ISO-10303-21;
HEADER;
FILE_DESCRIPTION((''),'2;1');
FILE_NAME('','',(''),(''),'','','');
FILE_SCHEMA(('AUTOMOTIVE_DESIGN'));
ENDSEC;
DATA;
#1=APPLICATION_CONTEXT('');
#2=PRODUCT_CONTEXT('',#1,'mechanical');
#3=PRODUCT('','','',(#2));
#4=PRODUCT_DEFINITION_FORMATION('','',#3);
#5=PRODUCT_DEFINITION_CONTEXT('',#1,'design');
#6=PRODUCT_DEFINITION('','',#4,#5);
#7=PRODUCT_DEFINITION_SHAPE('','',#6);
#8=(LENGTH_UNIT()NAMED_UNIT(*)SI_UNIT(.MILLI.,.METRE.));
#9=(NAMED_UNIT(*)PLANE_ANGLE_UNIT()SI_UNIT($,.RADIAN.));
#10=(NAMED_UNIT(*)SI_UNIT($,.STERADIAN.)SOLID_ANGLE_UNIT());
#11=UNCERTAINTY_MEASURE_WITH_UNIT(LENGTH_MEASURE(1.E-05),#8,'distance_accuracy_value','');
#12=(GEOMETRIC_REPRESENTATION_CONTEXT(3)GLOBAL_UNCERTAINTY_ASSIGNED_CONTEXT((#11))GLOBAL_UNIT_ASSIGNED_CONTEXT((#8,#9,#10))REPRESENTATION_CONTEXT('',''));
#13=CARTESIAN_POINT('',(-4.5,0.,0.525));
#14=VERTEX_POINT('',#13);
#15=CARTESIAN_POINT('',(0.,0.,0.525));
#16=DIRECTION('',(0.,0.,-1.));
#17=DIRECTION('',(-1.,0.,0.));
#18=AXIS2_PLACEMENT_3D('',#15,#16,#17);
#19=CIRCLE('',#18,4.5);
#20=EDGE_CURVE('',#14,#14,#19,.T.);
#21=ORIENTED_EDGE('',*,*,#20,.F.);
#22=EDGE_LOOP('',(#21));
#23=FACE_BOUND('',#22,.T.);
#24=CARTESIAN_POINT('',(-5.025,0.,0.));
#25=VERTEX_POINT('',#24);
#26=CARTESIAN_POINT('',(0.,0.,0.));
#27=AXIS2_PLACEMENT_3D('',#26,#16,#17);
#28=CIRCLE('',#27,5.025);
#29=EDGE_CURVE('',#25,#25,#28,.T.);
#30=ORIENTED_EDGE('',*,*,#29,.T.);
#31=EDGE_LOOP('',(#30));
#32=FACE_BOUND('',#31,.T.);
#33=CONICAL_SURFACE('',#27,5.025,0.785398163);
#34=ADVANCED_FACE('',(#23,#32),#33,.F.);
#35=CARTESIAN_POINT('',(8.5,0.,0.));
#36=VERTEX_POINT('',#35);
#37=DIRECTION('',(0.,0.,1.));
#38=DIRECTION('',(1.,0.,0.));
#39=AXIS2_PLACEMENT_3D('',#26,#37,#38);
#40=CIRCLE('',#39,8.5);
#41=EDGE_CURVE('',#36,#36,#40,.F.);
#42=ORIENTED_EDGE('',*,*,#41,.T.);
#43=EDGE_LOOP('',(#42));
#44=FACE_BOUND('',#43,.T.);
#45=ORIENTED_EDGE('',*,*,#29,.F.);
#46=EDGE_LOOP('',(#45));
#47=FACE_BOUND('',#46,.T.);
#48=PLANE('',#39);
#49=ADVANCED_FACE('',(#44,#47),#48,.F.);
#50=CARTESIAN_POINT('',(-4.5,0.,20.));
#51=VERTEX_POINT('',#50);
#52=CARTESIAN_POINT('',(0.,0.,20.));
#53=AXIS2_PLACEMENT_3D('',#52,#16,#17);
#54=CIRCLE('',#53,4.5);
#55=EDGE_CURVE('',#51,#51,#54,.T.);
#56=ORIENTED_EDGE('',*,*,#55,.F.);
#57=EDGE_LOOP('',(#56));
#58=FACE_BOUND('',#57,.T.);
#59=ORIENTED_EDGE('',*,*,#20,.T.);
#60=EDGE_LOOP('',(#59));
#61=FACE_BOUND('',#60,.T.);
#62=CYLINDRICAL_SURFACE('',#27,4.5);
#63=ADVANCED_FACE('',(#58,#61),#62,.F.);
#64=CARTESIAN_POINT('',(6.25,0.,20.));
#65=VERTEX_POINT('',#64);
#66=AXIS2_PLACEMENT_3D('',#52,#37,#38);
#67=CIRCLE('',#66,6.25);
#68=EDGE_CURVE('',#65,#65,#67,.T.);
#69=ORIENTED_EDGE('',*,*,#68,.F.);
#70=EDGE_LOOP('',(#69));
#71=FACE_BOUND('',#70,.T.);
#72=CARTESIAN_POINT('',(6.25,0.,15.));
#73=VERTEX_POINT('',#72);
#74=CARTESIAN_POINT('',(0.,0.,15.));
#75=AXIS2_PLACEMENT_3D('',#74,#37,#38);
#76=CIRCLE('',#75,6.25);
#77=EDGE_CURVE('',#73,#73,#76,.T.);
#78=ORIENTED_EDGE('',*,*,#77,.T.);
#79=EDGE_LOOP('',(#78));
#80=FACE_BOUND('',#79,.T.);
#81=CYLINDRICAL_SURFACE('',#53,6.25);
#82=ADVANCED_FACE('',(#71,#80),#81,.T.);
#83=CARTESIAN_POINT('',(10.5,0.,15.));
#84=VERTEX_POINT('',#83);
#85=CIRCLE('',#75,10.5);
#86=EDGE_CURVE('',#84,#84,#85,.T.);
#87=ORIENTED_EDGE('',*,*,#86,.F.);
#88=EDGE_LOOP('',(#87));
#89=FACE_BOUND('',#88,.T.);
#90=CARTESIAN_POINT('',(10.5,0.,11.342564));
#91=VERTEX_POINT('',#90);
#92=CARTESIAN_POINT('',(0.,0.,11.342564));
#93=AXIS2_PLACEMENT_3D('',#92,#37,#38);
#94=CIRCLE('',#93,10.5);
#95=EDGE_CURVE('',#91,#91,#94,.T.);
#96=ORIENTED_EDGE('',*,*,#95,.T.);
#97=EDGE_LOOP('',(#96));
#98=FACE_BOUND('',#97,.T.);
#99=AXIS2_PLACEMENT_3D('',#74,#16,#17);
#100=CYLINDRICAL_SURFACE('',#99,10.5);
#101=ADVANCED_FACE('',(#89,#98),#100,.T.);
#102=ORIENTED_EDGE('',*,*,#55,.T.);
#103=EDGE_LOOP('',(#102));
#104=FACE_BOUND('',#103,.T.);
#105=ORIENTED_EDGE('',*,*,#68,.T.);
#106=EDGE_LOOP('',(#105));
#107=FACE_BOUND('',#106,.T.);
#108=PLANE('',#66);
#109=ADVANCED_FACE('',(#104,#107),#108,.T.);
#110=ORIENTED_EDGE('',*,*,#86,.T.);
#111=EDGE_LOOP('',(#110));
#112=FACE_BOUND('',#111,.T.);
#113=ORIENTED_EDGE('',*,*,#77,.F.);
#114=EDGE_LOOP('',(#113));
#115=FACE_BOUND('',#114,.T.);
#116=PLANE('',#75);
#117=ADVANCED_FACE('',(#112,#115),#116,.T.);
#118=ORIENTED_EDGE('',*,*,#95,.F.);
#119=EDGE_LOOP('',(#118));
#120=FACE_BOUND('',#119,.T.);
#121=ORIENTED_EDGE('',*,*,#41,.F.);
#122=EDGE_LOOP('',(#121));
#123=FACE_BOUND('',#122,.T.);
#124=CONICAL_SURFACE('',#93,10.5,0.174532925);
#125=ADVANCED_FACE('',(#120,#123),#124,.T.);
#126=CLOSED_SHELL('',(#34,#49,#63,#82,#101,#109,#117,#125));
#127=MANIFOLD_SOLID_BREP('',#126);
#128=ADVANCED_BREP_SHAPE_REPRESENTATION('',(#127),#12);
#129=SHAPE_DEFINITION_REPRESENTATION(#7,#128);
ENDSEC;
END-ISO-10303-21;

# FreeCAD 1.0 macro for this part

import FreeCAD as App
import Part
import Sketcher
Q = App.Units.Quantity


def edges_at(feature, points):
    """Names of the edges that pass closest to the given points."""
    edges = feature.Shape.Edges
    near = lambda p: min(range(len(edges)), key=lambda i: edges[i].distToShape(Part.Vertex(*p))[0])
    return sorted({f"Edge{near(p) + 1}" for p in points})

doc = App.newDocument("Part")
body = doc.addObject("PartDesign::Body", "Body")

sketch1 = doc.addObject("Sketcher::SketchObject", "Sketch")
body.addObject(sketch1)
sketch1.AttachmentSupport = (doc.XY_Plane, [""])
sketch1.MapMode = "FlatFace"
sketch1.addGeometry(Part.Circle(App.Vector(0, 0, 0), App.Vector(0, 0, 1), 10.5), False)
sketch1.addConstraint([
    Sketcher.Constraint("Coincident", 0, 3, -1, 1),
    Sketcher.Constraint("Diameter", 0, Q("21 mm")),
])
pad1 = doc.addObject("PartDesign::Pad", "Pad")
body.addObject(pad1)
pad1.Profile = sketch1
pad1.Length = 15

sketch2 = doc.addObject("Sketcher::SketchObject", "Sketch001")
body.addObject(sketch2)
sketch2.AttachmentSupport = (doc.XY_Plane, [""])
sketch2.MapMode = "FlatFace"
sketch2.AttachmentOffset = App.Placement(App.Vector(0, 0, 15), App.Rotation())
sketch2.addGeometry(Part.Circle(App.Vector(0, 0, 0), App.Vector(0, 0, 1), 6.25), False)
sketch2.addConstraint([
    Sketcher.Constraint("Coincident", 0, 3, -1, 1),
    Sketcher.Constraint("Diameter", 0, Q("12.5 mm")),
])
pad2 = doc.addObject("PartDesign::Pad", "Pad001")
body.addObject(pad2)
pad2.Profile = sketch2
pad2.Length = 5

sketch3 = doc.addObject("Sketcher::SketchObject", "Sketch002")
body.addObject(sketch3)
sketch3.AttachmentSupport = (doc.XY_Plane, [""])
sketch3.MapMode = "FlatFace"
sketch3.addGeometry(Part.Circle(App.Vector(0, 0, 0), App.Vector(0, 0, 1), 4.5), False)
sketch3.addConstraint([
    Sketcher.Constraint("Coincident", 0, 3, -1, 1),
    Sketcher.Constraint("Diameter", 0, Q("9 mm")),
])
doc.recompute()
hole = doc.addObject("PartDesign::Hole", "Hole")
body.addObject(hole)
hole.Profile = sketch3
hole.ThreadType = "None"
hole.Diameter = 9
hole.DepthType = "ThroughAll"
hole.HoleCutType = "Countersink"
hole.HoleCutDiameter = 10.05
hole.HoleCutCountersinkAngle = 90
hole.Reversed = True
doc.recompute()

chamfer = doc.addObject("PartDesign::Chamfer", "Chamfer")
body.addObject(chamfer)
chamfer.Base = (hole, edges_at(hole, [(-10.5, 0, 0)]))
chamfer.ChamferType = "Two distances"
chamfer.Size = 2
chamfer.Size2 = 11.342564
chamfer.FlipDirection = True

doc.recompute()
